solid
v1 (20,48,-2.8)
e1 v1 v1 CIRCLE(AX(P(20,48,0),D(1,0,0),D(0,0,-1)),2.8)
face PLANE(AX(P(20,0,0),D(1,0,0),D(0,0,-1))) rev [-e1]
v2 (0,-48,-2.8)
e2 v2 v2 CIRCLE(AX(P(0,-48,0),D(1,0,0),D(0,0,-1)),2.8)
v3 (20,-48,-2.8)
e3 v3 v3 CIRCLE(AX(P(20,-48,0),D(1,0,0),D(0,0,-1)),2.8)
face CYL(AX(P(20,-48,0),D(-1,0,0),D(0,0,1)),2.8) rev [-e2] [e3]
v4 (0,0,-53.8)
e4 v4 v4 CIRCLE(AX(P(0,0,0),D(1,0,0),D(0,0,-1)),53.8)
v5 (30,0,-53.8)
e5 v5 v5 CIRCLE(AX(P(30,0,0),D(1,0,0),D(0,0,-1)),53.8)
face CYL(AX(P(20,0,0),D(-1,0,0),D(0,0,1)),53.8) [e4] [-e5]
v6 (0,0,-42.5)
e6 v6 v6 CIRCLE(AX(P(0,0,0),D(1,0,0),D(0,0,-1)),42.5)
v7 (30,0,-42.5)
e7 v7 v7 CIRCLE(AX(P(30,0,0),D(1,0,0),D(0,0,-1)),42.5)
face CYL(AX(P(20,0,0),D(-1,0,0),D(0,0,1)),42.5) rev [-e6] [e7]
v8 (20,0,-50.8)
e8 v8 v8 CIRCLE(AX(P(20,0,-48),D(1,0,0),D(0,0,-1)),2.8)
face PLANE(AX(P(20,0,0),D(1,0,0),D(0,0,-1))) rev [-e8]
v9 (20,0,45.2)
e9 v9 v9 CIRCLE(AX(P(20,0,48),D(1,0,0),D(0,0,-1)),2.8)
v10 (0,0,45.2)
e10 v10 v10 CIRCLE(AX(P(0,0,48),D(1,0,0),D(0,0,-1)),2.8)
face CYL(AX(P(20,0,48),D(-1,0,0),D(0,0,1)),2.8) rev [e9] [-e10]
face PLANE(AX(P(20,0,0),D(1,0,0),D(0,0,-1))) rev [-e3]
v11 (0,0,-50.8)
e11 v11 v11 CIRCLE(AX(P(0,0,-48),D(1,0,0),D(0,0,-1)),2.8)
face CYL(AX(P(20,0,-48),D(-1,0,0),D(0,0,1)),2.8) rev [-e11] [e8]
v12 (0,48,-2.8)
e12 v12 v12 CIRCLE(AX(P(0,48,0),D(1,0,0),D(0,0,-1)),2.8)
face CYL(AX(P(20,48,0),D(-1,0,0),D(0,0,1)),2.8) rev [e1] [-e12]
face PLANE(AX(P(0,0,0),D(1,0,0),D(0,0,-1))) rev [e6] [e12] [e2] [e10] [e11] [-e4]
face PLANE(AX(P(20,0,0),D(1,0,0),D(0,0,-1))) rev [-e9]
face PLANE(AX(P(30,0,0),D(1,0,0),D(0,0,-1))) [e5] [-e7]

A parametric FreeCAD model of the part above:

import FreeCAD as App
import Part
import Sketcher
from FreeCAD import Vector

doc = App.newDocument("Part")
body = doc.addObject("PartDesign::Body", "Body")

# Sketch on YZ plane
sketch1 = doc.addObject("Sketcher::SketchObject", "Sketch")
body.addObject(sketch1)
sketch1.AttachmentSupport = (doc.YZ_Plane, [""])
sketch1.MapMode = "FlatFace"
sketch1.addGeometry([
    Part.Circle(Vector(0, 0, 0), Vector(0, 0, 1), 53.8),  # 0
    Part.Circle(Vector(-48, 0, 0), Vector(0, 0, 1), 2.8),  # 1
    Part.Circle(Vector(0, 48, 0), Vector(0, 0, 1), 2.8),  # 2
    Part.Circle(Vector(0, 0, 0), Vector(0, 0, 1), 42.5),  # 3
    Part.Circle(Vector(0, -48, 0), Vector(0, 0, 1), 2.8),  # 4
    Part.Circle(Vector(48, 0, 0), Vector(0, 0, 1), 2.8),  # 5
], False)
sketch1.addConstraint([
    Sketcher.Constraint("Coincident", 0, 3, -1, 1),
    Sketcher.Constraint("Coincident", 3, 3, -1, 1),
    Sketcher.Constraint("Equal", 1, 2),
    Sketcher.Constraint("Equal", 2, 4),
    Sketcher.Constraint("Equal", 4, 5),
    Sketcher.Constraint("Symmetric", 2, 3, 4, 3, -1, 1),
    Sketcher.Constraint("Symmetric", 1, 3, 5, 3, -1, 1),
    Sketcher.Constraint("PointOnObject", 1, 3, -1),
    Sketcher.Constraint("PointOnObject", 2, 3, -2),
    Sketcher.Constraint("Diameter", 3, 85.0),
    Sketcher.Constraint("Diameter", 0, 107.6),
    Sketcher.Constraint("Diameter", 1, 5.6),
    Sketcher.Constraint("DistanceX", 1, 3, -1, 1, 48.0),
    Sketcher.Constraint("DistanceY", -1, 1, 2, 3, 48.0),
])
pad1 = doc.addObject("PartDesign::Pad", "Pad")
body.addObject(pad1)
pad1.Profile = sketch1
pad1.Length = 20

# Sketch on YZ plane
sketch2 = doc.addObject("Sketcher::SketchObject", "Sketch001")
body.addObject(sketch2)
sketch2.AttachmentSupport = (doc.YZ_Plane, [""])
sketch2.MapMode = "FlatFace"
sketch2.AttachmentOffset = App.Placement(Vector(0, 0, 20), App.Rotation())
sketch2.addGeometry([
    Part.Circle(Vector(0, 0, 0), Vector(0, 0, 1), 54),
    Part.Circle(Vector(0, 0, 0), Vector(0, 0, 1), 42),
], False)
sketch2.addConstraint([
    Sketcher.Constraint("Coincident", 0, 3, -1, 1),
    Sketcher.Constraint("Coincident", 1, 3, -1, 1),
    Sketcher.Constraint("Diameter", 1, 85.0),
    Sketcher.Constraint("Diameter", 0, 107.6),
])
pad2 = doc.addObject("PartDesign::Pad", "Pad001")
body.addObject(pad2)
pad2.Profile = sketch2
pad2.Length = 10

doc.recompute()
